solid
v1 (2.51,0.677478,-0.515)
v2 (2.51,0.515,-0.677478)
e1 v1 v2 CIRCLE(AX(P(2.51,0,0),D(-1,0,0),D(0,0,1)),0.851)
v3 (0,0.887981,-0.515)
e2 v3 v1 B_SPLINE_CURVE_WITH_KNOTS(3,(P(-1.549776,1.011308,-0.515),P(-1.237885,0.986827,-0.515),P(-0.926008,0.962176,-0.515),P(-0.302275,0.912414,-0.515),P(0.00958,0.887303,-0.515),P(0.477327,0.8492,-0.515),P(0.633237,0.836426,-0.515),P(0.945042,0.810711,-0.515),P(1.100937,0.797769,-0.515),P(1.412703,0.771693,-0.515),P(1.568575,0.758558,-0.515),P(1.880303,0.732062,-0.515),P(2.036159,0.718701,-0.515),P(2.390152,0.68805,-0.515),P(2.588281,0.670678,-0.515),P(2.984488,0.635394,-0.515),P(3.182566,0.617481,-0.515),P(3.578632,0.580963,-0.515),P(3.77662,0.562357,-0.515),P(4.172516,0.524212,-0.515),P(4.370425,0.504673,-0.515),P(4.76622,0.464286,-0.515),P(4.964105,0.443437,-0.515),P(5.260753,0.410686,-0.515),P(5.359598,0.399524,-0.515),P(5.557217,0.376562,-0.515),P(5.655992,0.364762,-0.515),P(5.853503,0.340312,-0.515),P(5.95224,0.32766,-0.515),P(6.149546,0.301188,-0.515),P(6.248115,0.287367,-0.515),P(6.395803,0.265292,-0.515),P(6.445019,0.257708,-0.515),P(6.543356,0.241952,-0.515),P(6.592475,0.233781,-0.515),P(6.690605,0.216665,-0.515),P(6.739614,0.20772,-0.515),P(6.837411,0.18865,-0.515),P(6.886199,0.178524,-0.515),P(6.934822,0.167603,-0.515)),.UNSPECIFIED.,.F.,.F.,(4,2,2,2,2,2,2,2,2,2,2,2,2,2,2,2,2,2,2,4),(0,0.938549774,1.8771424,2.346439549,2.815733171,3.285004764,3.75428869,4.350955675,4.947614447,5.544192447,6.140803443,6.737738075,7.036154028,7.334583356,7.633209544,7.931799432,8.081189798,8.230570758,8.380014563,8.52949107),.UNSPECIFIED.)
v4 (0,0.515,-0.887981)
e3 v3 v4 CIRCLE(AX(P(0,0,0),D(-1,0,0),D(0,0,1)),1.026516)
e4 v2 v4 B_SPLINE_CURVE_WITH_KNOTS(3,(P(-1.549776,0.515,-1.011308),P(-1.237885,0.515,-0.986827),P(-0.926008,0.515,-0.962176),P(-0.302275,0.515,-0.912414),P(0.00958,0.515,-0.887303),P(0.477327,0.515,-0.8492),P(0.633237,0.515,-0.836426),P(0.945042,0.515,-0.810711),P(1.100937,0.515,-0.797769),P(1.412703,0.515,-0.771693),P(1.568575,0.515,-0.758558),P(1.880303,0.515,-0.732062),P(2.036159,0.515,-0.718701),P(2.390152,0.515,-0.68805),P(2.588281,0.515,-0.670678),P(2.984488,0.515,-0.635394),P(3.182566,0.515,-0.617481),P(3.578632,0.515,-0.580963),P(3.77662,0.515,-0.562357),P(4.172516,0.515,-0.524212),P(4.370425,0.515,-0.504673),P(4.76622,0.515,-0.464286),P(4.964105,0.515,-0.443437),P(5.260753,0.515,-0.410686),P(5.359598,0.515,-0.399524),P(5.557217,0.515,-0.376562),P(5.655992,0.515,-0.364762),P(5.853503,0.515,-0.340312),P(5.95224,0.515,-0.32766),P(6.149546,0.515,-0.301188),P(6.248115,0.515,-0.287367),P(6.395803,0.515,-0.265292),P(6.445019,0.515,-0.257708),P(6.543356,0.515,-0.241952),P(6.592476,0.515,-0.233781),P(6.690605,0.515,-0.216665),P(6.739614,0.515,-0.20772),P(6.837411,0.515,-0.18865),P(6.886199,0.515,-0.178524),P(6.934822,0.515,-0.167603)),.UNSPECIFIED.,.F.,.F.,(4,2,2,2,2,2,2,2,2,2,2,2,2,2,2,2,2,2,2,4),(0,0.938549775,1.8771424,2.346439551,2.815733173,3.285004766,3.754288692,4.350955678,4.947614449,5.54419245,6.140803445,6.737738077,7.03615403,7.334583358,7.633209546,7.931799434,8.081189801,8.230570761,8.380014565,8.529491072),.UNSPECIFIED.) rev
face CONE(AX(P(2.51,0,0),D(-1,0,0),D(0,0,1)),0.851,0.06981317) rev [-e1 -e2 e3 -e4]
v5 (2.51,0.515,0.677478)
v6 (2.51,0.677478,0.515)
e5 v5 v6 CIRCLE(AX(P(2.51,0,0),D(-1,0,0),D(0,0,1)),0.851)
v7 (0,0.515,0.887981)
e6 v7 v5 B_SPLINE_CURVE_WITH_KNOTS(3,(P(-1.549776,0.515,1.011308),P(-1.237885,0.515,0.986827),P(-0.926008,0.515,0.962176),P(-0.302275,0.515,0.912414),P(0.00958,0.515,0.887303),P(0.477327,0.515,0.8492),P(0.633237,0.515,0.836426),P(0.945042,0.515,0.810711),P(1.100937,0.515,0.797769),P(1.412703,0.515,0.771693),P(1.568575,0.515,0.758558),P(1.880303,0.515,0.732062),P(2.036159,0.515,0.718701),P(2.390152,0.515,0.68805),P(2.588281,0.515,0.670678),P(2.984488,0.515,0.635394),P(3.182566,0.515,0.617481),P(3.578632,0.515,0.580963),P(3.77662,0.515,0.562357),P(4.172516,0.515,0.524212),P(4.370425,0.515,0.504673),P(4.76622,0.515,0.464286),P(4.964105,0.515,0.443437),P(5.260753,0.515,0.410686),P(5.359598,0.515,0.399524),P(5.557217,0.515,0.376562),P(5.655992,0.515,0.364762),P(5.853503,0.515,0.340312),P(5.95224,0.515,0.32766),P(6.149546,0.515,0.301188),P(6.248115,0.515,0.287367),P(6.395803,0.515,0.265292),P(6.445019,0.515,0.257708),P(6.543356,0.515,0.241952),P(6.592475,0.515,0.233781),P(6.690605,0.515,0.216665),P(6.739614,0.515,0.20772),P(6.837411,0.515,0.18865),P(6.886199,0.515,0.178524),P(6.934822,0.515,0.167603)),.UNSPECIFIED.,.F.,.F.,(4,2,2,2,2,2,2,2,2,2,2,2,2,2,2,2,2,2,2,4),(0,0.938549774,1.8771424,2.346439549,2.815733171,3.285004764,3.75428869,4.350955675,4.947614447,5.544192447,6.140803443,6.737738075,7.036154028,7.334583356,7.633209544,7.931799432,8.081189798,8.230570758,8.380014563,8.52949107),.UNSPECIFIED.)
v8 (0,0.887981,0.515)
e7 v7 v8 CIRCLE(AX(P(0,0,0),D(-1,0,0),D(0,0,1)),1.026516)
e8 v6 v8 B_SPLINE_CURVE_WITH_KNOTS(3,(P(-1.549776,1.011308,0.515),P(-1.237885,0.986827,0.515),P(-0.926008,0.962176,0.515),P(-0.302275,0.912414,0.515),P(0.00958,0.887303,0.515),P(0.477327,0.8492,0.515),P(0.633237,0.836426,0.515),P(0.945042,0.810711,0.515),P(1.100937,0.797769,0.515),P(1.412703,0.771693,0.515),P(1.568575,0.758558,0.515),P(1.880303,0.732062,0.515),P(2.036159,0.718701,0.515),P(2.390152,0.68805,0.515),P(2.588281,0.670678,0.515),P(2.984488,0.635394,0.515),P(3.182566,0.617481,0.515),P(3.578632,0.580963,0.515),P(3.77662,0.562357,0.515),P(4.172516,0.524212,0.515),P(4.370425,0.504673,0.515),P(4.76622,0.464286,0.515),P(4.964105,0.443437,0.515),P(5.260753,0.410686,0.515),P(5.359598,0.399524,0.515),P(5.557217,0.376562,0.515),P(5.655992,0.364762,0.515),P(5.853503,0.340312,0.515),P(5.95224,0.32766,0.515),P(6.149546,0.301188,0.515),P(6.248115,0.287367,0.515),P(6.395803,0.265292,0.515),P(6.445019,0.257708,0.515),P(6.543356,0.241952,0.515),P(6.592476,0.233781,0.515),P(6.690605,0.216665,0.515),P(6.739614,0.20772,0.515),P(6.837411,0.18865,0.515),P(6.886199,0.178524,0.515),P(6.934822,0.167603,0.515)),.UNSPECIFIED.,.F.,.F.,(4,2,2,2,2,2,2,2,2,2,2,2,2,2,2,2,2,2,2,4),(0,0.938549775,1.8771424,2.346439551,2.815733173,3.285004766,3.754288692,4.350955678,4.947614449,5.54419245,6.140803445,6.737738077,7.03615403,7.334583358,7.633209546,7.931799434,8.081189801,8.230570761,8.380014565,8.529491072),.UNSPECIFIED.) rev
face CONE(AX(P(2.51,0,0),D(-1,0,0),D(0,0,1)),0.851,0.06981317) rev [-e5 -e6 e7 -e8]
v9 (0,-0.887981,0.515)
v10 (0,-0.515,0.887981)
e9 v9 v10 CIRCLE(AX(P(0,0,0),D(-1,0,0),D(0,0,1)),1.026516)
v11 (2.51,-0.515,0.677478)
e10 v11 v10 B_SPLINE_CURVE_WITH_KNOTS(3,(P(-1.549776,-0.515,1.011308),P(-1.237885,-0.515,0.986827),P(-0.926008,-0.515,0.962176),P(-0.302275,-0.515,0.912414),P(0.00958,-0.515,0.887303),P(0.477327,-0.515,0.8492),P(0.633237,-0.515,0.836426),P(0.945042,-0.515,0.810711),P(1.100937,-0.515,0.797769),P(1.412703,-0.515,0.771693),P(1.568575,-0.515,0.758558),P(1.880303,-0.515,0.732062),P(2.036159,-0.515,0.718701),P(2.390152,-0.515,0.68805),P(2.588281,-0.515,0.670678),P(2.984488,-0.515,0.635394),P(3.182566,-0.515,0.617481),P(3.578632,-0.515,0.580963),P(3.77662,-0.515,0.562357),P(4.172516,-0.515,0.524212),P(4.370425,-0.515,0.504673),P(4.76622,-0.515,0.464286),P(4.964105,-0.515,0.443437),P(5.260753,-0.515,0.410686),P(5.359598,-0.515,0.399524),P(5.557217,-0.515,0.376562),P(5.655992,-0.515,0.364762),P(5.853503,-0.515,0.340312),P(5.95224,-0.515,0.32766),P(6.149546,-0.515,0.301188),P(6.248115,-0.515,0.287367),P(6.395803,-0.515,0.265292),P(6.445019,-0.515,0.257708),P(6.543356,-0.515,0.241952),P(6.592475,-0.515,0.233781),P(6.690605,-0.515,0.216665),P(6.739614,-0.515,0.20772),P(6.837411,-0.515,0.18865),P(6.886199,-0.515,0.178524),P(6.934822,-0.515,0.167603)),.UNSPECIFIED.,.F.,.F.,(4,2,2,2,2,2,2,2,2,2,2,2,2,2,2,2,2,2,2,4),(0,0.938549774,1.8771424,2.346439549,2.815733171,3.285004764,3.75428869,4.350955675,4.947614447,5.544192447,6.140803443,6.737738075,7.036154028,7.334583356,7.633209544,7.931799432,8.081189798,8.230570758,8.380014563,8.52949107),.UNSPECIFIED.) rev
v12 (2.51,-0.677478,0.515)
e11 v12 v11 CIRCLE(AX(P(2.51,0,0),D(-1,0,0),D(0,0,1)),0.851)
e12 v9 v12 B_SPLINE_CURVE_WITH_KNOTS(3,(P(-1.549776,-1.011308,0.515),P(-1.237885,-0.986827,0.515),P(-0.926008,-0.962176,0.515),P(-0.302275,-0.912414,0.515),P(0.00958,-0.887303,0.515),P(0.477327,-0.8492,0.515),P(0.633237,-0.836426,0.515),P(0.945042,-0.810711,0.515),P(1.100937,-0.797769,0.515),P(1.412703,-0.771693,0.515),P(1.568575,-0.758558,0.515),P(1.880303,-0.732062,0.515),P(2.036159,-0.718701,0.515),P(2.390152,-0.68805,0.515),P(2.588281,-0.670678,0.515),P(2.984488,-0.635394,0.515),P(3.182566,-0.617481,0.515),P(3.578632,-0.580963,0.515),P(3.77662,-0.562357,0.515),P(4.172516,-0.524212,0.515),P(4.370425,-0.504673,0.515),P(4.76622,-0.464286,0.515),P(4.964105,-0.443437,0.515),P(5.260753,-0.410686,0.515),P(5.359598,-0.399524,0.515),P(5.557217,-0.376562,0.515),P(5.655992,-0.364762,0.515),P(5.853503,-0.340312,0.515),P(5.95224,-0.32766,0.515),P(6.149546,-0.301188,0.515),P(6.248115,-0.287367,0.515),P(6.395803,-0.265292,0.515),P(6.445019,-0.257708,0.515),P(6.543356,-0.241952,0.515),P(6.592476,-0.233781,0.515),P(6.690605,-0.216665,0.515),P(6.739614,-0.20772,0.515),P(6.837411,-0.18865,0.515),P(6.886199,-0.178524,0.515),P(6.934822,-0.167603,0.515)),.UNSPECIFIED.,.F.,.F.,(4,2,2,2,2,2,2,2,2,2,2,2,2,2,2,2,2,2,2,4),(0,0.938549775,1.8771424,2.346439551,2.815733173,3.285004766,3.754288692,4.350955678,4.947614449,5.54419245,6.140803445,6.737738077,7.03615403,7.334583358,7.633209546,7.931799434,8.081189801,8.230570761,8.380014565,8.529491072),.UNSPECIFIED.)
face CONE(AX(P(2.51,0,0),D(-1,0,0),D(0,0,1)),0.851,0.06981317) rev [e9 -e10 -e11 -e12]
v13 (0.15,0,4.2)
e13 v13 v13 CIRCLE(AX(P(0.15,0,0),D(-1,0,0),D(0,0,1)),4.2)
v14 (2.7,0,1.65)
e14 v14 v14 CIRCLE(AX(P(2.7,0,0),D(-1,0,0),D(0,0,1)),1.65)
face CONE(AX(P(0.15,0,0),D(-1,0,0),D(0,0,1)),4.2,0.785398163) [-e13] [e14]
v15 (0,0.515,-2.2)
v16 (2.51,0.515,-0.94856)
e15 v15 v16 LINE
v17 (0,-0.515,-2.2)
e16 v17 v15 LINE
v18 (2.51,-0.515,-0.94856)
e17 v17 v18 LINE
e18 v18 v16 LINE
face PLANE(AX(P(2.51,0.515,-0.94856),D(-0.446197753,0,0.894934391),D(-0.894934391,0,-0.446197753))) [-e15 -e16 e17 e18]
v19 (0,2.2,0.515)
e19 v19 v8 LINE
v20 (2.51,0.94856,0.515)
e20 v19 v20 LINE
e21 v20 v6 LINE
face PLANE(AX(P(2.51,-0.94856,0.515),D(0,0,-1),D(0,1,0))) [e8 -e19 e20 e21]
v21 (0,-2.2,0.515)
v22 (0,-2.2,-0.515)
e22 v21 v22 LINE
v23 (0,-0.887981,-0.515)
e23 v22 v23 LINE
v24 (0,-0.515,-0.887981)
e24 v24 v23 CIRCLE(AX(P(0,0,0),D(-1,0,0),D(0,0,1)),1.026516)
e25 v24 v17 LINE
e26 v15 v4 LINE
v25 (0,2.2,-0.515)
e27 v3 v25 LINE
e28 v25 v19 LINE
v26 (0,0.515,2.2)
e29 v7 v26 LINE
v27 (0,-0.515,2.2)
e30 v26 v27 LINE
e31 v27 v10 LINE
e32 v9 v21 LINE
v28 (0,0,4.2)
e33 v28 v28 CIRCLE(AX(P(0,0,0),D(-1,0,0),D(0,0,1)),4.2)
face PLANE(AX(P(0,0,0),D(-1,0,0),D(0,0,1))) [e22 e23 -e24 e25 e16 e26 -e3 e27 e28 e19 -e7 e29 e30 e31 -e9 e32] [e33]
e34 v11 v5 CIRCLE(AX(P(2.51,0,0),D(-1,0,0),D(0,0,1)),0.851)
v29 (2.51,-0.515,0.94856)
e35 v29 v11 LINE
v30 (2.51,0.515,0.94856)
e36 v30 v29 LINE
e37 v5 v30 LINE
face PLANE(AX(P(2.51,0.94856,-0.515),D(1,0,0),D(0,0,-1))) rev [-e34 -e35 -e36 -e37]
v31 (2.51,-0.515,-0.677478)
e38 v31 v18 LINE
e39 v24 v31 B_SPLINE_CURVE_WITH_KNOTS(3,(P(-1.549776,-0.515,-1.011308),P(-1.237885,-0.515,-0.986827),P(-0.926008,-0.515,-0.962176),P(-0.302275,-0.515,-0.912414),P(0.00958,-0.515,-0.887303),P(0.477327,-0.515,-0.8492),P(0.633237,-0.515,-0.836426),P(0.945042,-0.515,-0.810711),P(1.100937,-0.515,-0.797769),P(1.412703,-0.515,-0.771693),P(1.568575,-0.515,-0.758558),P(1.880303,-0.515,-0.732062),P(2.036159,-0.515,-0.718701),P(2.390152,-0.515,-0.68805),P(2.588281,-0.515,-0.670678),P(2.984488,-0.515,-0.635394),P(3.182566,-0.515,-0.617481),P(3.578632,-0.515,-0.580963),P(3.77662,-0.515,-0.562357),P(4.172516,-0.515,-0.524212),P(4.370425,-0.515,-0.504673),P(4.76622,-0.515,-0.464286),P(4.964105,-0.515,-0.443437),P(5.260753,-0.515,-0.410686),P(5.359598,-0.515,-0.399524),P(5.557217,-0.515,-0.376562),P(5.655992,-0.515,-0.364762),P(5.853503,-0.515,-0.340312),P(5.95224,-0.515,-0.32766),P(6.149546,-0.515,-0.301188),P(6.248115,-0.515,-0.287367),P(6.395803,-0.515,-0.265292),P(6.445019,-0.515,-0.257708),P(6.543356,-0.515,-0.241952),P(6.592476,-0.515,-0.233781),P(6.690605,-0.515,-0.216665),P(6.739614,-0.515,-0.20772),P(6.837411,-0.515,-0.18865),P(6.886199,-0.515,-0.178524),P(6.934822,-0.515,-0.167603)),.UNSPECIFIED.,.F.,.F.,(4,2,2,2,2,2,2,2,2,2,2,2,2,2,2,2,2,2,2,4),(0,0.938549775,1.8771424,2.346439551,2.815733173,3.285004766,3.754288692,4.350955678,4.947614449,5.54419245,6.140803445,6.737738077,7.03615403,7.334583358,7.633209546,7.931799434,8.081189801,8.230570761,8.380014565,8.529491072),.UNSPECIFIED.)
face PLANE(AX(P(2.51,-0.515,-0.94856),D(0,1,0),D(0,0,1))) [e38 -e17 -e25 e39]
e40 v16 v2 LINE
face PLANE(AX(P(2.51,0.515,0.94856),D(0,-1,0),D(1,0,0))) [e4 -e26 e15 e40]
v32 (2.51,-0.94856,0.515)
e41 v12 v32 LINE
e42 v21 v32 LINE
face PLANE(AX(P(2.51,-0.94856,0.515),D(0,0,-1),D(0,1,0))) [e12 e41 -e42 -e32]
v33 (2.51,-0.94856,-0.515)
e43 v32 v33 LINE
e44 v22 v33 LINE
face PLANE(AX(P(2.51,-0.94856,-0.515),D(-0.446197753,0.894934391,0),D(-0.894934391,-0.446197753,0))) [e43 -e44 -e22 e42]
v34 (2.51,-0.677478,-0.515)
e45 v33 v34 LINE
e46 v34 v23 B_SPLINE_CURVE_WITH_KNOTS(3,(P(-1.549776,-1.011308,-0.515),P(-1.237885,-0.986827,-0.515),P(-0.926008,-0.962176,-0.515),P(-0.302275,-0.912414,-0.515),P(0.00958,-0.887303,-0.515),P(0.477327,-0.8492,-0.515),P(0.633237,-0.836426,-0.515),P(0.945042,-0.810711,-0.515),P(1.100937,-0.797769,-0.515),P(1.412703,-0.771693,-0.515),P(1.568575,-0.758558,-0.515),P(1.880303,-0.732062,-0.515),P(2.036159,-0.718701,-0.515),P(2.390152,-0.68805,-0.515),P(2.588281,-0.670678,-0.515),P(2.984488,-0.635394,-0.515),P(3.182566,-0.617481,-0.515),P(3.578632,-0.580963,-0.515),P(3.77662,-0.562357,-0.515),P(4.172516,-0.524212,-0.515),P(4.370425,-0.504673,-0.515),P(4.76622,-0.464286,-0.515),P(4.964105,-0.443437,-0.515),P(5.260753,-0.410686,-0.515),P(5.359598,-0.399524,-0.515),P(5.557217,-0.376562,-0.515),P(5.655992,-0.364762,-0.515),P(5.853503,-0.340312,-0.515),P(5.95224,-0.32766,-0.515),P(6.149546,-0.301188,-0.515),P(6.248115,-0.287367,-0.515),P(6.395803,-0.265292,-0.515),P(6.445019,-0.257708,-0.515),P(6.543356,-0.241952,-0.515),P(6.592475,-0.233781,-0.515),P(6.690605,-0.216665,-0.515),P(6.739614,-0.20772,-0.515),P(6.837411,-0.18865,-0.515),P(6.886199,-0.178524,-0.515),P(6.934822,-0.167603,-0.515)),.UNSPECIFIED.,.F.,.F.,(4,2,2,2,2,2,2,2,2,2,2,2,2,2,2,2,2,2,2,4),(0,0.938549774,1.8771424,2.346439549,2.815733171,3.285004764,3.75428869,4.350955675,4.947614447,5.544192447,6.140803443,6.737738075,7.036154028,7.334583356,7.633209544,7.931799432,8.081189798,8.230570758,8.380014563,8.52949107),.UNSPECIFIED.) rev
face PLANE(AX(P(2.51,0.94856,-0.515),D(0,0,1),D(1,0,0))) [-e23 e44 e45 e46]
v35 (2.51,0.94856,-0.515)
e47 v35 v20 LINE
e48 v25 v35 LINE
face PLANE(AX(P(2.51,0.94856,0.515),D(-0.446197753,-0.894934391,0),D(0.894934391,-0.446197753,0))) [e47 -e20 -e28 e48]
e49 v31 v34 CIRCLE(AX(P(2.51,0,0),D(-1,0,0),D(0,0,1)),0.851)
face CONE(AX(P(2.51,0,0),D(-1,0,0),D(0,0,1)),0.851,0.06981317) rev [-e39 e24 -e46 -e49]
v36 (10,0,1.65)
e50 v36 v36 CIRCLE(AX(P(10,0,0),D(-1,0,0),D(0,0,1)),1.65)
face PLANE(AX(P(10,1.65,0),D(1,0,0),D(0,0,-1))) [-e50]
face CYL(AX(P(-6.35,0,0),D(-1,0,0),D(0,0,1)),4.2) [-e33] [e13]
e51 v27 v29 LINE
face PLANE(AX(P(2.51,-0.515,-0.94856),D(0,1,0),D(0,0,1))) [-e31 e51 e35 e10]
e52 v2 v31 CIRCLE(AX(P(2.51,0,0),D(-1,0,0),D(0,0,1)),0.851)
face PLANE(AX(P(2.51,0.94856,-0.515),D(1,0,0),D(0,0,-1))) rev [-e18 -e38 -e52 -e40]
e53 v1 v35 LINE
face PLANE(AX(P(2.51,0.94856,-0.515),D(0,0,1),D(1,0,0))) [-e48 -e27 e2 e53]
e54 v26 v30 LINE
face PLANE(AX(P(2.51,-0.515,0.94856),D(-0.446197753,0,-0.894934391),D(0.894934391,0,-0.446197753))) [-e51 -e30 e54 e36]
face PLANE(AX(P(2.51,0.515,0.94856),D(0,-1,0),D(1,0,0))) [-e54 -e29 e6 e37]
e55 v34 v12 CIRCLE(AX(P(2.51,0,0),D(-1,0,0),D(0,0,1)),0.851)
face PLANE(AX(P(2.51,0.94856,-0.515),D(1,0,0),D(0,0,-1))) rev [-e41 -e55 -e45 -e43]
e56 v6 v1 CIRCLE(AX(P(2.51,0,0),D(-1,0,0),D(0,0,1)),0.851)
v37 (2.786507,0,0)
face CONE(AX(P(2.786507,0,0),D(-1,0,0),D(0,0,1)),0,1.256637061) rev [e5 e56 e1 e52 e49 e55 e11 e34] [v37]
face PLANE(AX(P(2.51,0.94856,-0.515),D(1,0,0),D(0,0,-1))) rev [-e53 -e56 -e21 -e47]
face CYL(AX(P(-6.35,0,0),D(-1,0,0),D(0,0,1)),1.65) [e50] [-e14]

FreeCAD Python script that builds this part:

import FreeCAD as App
import Part
import Sketcher

V = App.Vector
Q = App.Units.Quantity

doc = App.newDocument("Part")
body = doc.addObject("PartDesign::Body", "Body")

# Sketch on XY plane
sketch1 = body.newObject("Sketcher::SketchObject", "Sketch")
sketch1.AttachmentSupport = (doc.getObject("XY_Plane"), [""])
sketch1.MapMode = "FlatFace"
sketch1.addGeometry([
    Part.LineSegment(V(0, 4.2, 0), V(0, 0, 0)),  # 0
    Part.LineSegment(V(0, 0, 0), V(10, 0, 0)),  # 1
    Part.LineSegment(V(10, 0, 0), V(10, 1.65, 0)),  # 2
    Part.LineSegment(V(10, 1.65, 0), V(2.7, 1.65, 0)),  # 3
    Part.LineSegment(V(2.7, 1.65, 0), V(0.15, 4.2, 0)),  # 4
    Part.LineSegment(V(0.15, 4.2, 0), V(0, 4.2, 0)),  # 5
], False)
sketch1.addConstraint([
    Sketcher.Constraint("Coincident", 0, 2, 1, 1),
    Sketcher.Constraint("Coincident", 1, 2, 2, 1),
    Sketcher.Constraint("Coincident", 2, 2, 3, 1),
    Sketcher.Constraint("Coincident", 3, 2, 4, 1),
    Sketcher.Constraint("Coincident", 4, 2, 5, 1),
    Sketcher.Constraint("Coincident", 5, 2, 0, 1),
    Sketcher.Constraint("Vertical", 0),
    Sketcher.Constraint("Horizontal", 1),
    Sketcher.Constraint("Vertical", 2),
    Sketcher.Constraint("Horizontal", 3),
    Sketcher.Constraint("Horizontal", 5),
    Sketcher.Constraint("Coincident", 0, 2, -1, 1),
    Sketcher.Constraint("DistanceX", 1, 1, 1, 2, Q("10 mm")),
    Sketcher.Constraint("Angle", 4, Q("135 deg")),
    Sketcher.Constraint("DistanceX", 3, 2, 3, 1, Q("7.3 mm")),
    Sketcher.Constraint("DistanceY", 0, 2, 0, 1, Q("4.2 mm")),
    Sketcher.Constraint("DistanceX", 5, 2, 5, 1, Q("0.15 mm")),
])
revolution = body.newObject("PartDesign::Revolution", "Revolution")
revolution.Profile = sketch1
revolution.ReferenceAxis = (sketch1, ["H_Axis"])
revolution.Angle = 360

# Sketch on YZ plane
sketch2 = body.newObject("Sketcher::SketchObject", "Sketch001")
sketch2.AttachmentSupport = (doc.getObject("YZ_Plane"), [""])
sketch2.MapMode = "FlatFace"
sketch2.addGeometry([
    Part.LineSegment(V(2.2, 0.5, 0), V(2.2, -0.5, 0)),
    Part.LineSegment(V(2.2, -0.5, 0), V(-2.2, -0.5, 0)),
    Part.LineSegment(V(-2.2, -0.5, 0), V(-2.2, 0.5, 0)),
    Part.LineSegment(V(-2.2, 0.5, 0), V(2.2, 0.5, 0)),
], False)
sketch2.addConstraint([
    Sketcher.Constraint("Coincident", 0, 2, 1, 1),
    Sketcher.Constraint("Coincident", 1, 2, 2, 1),
    Sketcher.Constraint("Coincident", 2, 2, 3, 1),
    Sketcher.Constraint("Coincident", 3, 2, 0, 1),
    Sketcher.Constraint("Vertical", 0),
    Sketcher.Constraint("Horizontal", 1),
    Sketcher.Constraint("Vertical", 2),
    Sketcher.Constraint("Horizontal", 3),
    Sketcher.Constraint("Symmetric", 0, 2, 2, 2, -1, 1),
    Sketcher.Constraint("DistanceX", 1, 2, 1, 1, Q("4.4 mm")),
    Sketcher.Constraint("DistanceY", 0, 2, 0, 1, Q("1.03 mm")),
])

# Sketch on YZ plane
sketch3 = body.newObject("Sketcher::SketchObject", "Sketch002")
sketch3.AttachmentSupport = (doc.getObject("YZ_Plane"), [""])
sketch3.MapMode = "FlatFace"
sketch3.AttachmentOffset = App.Placement(V(0, 0, 2.51), App.Rotation())
sketch3.addGeometry([
    Part.LineSegment(V(0.9, 0.5, 0), V(0.9, -0.5, 0)),
    Part.LineSegment(V(0.9, -0.5, 0), V(-0.9, -0.5, 0)),
    Part.LineSegment(V(-0.9, -0.5, 0), V(-0.9, 0.5, 0)),
    Part.LineSegment(V(-0.9, 0.5, 0), V(0.9, 0.5, 0)),
], False)
sketch3.addConstraint([
    Sketcher.Constraint("Coincident", 0, 2, 1, 1),
    Sketcher.Constraint("Coincident", 1, 2, 2, 1),
    Sketcher.Constraint("Coincident", 2, 2, 3, 1),
    Sketcher.Constraint("Coincident", 3, 2, 0, 1),
    Sketcher.Constraint("Vertical", 0),
    Sketcher.Constraint("Horizontal", 1),
    Sketcher.Constraint("Vertical", 2),
    Sketcher.Constraint("Horizontal", 3),
    Sketcher.Constraint("Symmetric", 0, 2, 2, 2, -1, 1),
    Sketcher.Constraint("DistanceY", 0, 2, 0, 1, Q("1.03 mm")),
    Sketcher.Constraint("DistanceX", 1, 2, 1, 1, Q("1.897121 mm")),
])

subtractiveloft = body.newObject("PartDesign::SubtractiveLoft", "SubtractiveLoft")
subtractiveloft.Profile = sketch2
subtractiveloft.Sections = [sketch3]
doc.recompute()

polarpattern = body.newObject("PartDesign::PolarPattern", "PolarPattern")
polarpattern.Originals = [subtractiveloft]
polarpattern.Axis = (doc.getObject("X_Axis"), [""])
polarpattern.Angle = 90
polarpattern.Occurrences = 2
body.Tip = polarpattern

# Sketch on XY plane
sketch4 = body.newObject("Sketcher::SketchObject", "Sketch003")
sketch4.AttachmentSupport = (doc.getObject("XY_Plane"), [""])
sketch4.MapMode = "FlatFace"
sketch4.addGeometry([
    Part.LineSegment(V(0, 1, 0), V(0, 0, 0)),
    Part.LineSegment(V(0, 0, 0), V(2.8, 0, 0)),
    Part.LineSegment(V(2.8, 0, 0), V(2.5, 0.9, 0)),
    Part.LineSegment(V(2.5, 0.9, 0), V(0, 1, 0)),
], False)
sketch4.addConstraint([
    Sketcher.Constraint("Coincident", 0, 2, 1, 1),
    Sketcher.Constraint("Coincident", 1, 2, 2, 1),
    Sketcher.Constraint("Coincident", 2, 2, 3, 1),
    Sketcher.Constraint("Coincident", 3, 2, 0, 1),
    Sketcher.Constraint("Vertical", 0),
    Sketcher.Constraint("Horizontal", 1),
    Sketcher.Constraint("Coincident", 0, 2, -1, 1),
    Sketcher.Constraint("Angle", 2, Q("108 deg")),
    Sketcher.Constraint("Angle", 3, Q("176 deg")),
    Sketcher.Constraint("DistanceX", -1, 1, 2, 2, Q("2.51 mm")),
    Sketcher.Constraint("DistanceY", -1, 1, 2, 2, Q("0.851 mm")),
])
groove = body.newObject("PartDesign::Groove", "Groove")
groove.Profile = sketch4
groove.ReferenceAxis = (sketch4, ["H_Axis"])
groove.Angle = 360

doc.recompute()
